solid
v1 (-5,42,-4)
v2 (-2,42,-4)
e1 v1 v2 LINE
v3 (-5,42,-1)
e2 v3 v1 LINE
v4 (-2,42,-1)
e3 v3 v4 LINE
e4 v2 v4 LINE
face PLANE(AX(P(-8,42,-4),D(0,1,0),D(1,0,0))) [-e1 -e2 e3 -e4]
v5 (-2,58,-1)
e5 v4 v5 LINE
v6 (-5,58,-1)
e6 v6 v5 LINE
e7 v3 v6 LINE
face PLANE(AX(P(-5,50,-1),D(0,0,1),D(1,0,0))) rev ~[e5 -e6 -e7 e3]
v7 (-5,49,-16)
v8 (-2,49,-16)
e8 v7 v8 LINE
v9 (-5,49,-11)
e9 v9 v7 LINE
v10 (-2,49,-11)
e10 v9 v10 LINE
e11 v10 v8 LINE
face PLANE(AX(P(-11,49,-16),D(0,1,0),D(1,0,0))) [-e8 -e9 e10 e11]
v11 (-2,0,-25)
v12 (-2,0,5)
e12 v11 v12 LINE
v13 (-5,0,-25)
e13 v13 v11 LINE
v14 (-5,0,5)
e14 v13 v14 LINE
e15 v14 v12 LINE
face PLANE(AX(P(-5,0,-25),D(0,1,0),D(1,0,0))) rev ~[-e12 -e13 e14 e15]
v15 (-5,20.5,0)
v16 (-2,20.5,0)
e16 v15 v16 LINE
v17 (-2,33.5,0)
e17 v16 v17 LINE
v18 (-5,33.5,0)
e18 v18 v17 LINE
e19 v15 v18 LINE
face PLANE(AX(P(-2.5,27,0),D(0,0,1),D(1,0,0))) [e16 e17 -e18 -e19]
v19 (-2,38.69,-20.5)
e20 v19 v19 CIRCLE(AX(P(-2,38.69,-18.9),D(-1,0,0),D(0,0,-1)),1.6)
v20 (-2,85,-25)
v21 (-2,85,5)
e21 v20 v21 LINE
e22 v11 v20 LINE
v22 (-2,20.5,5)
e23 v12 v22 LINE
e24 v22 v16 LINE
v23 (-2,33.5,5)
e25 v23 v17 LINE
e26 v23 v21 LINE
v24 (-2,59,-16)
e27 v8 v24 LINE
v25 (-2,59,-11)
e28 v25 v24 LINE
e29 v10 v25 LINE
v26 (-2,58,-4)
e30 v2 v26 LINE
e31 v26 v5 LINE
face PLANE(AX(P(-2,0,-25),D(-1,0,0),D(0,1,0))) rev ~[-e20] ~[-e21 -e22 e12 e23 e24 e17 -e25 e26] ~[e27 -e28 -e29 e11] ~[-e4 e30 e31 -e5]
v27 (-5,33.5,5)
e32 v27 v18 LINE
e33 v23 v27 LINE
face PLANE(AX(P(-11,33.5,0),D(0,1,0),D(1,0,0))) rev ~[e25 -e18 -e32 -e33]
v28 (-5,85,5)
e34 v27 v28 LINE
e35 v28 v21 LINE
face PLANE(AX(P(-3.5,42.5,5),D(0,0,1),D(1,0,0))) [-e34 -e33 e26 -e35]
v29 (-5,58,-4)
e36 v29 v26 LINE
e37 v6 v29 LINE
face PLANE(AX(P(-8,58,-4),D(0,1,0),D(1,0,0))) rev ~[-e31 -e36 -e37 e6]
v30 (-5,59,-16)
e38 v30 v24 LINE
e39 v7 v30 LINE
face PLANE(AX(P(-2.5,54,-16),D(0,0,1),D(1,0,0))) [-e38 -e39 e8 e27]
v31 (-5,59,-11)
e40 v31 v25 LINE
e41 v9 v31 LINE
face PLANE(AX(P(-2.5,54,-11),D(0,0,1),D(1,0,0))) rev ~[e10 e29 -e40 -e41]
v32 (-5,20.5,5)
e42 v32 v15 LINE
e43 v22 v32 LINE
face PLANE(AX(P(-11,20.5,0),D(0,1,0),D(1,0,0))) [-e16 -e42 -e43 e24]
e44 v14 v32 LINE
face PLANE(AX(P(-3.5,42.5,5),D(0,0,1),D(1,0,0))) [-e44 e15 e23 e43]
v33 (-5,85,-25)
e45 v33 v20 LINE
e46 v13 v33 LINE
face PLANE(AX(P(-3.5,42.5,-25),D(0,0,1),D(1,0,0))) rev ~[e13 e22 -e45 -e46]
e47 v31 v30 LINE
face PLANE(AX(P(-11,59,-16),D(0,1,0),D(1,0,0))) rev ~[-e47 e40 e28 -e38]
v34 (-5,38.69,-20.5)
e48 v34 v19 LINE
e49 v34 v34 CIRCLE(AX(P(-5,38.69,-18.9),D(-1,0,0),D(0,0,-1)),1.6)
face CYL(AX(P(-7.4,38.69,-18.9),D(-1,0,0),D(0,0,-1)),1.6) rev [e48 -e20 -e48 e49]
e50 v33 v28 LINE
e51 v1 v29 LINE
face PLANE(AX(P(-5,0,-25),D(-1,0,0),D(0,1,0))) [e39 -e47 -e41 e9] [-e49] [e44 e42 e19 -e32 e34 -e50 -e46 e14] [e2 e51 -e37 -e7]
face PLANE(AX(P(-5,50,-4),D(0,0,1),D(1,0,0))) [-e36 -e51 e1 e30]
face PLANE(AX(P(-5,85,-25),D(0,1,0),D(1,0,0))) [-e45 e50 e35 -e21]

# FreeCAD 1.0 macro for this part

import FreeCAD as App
import Part
import Sketcher

V = App.Vector


def add_polygon(sketch, points):
    """Adds a closed chain of lines whose ends are joined by coincident constraints."""
    first, n = sketch.GeometryCount, len(points)
    for a, b in zip(points, points[1:] + points[:1]):
        sketch.addGeometry(Part.LineSegment(App.Vector(*a, 0), App.Vector(*b, 0)), False)
    for i in range(n):
        sketch.addConstraint(Sketcher.Constraint("Coincident", first + i, 2, first + (i + 1) % n, 1))

doc = App.newDocument("Part")
body = doc.addObject("PartDesign::Body", "Body")

# Sketch on XY plane
sketch1 = doc.addObject("Sketcher::SketchObject", "Sketch")
body.addObject(sketch1)
sketch1.AttachmentSupport = (doc.XY_Plane, [""])
sketch1.MapMode = "FlatFace"
sketch1.addGeometry(Part.Circle(V(0, 0, 0), V(0, 0, 1), 1.6), False)
sketch1.addConstraint(Sketcher.Constraint("Coincident", 0, 3, -1, 1))
sketch1.addConstraint(Sketcher.Constraint("Diameter", 0, 3.2))
pad1 = doc.addObject("PartDesign::Pad", "Pad")
body.addObject(pad1)
pad1.Profile = sketch1
pad1.Length = 10
body2 = doc.addObject("PartDesign::Body", "Body001")
doc.recompute()

body.Placement = App.Placement(V(0, 0, 0), App.Rotation(V(0, 1, 0), 90))
boolean = doc.addObject("PartDesign::Boolean", "Boolean")
body2.addObject(boolean)
boolean.Type = "Fuse"
boolean.addObjects([body])
body3 = doc.addObject("PartDesign::Body", "Body002")
doc.recompute()

body2.Placement = App.Placement(V(-7.4, 38.69, -18.9), App.Rotation(V(0, 0, 1), 0))
boolean2 = doc.addObject("PartDesign::Boolean", "Boolean001")
body3.addObject(boolean2)
boolean2.Type = "Fuse"
boolean2.addObjects([body2])
body4 = doc.addObject("PartDesign::Body", "Body003")

# Sketch on XY plane
sketch2 = doc.addObject("Sketcher::SketchObject", "Sketch001")
body4.addObject(sketch2)
sketch2.AttachmentSupport = (doc.getObject("XY_Plane003"), [""])
sketch2.MapMode = "FlatFace"
sketch2.AttachmentOffset = App.Placement(V(0, 0, -16), App.Rotation())
add_polygon(sketch2, [(-11, 59), (-11, 49), (6, 49), (6, 59)])  # lines 0-3
sketch2.addConstraint(Sketcher.Constraint("Vertical", 0))
sketch2.addConstraint(Sketcher.Constraint("Horizontal", 1))
sketch2.addConstraint(Sketcher.Constraint("Vertical", 2))
sketch2.addConstraint(Sketcher.Constraint("Horizontal", 3))
sketch2.addConstraint(Sketcher.Constraint("DistanceX", 1, 1, 1, 2, 17.0))
sketch2.addConstraint(Sketcher.Constraint("DistanceY", 0, 2, 0, 1, 10.0))
sketch2.addConstraint(Sketcher.Constraint("DistanceX", 0, 2, -1, 1, 11.0))
sketch2.addConstraint(Sketcher.Constraint("DistanceY", -1, 1, 0, 2, 49.0))
pad2 = doc.addObject("PartDesign::Pad", "Pad001")
body4.addObject(pad2)
pad2.Profile = sketch2
pad2.Length = 5
body5 = doc.addObject("PartDesign::Body", "Body004")

# Sketch on XY plane
sketch3 = doc.addObject("Sketcher::SketchObject", "Sketch002")
body5.addObject(sketch3)
sketch3.AttachmentSupport = (doc.getObject("XY_Plane004"), [""])
sketch3.MapMode = "FlatFace"
sketch3.AttachmentOffset = App.Placement(V(0, 0, -4), App.Rotation())
add_polygon(sketch3, [(-8, 58), (-8, 42), (-2, 42), (-2, 58)])  # lines 0-3
sketch3.addConstraint(Sketcher.Constraint("Vertical", 0))
sketch3.addConstraint(Sketcher.Constraint("Horizontal", 1))
sketch3.addConstraint(Sketcher.Constraint("Vertical", 2))
sketch3.addConstraint(Sketcher.Constraint("Horizontal", 3))
sketch3.addConstraint(Sketcher.Constraint("DistanceX", 1, 1, 1, 2, 6.0))
sketch3.addConstraint(Sketcher.Constraint("DistanceY", 0, 2, 0, 1, 16.0))
sketch3.addConstraint(Sketcher.Constraint("DistanceX", 0, 2, -1, 1, 8.0))
sketch3.addConstraint(Sketcher.Constraint("DistanceY", -1, 1, 0, 2, 42.0))
pad3 = doc.addObject("PartDesign::Pad", "Pad002")
body5.addObject(pad3)
pad3.Profile = sketch3
pad3.Length = 3
body6 = doc.addObject("PartDesign::Body", "Body005")
body6.AllowCompound = True

# Sketch on XY plane
sketch4 = doc.addObject("Sketcher::SketchObject", "Sketch003")
body6.addObject(sketch4)
sketch4.AttachmentSupport = (doc.getObject("XY_Plane005"), [""])
sketch4.MapMode = "FlatFace"
add_polygon(sketch4, [(-11, 33.5), (-11, 20.5), (6, 20.5), (6, 33.5)])  # lines 0-3
sketch4.addConstraint(Sketcher.Constraint("Vertical", 0))
sketch4.addConstraint(Sketcher.Constraint("Horizontal", 1))
sketch4.addConstraint(Sketcher.Constraint("Vertical", 2))
sketch4.addConstraint(Sketcher.Constraint("Horizontal", 3))
sketch4.addConstraint(Sketcher.Constraint("DistanceX", 1, 1, 1, 2, 17.0))
sketch4.addConstraint(Sketcher.Constraint("DistanceY", 0, 2, 0, 1, 13.0))
sketch4.addConstraint(Sketcher.Constraint("DistanceX", 0, 2, -1, 1, 11.0))
sketch4.addConstraint(Sketcher.Constraint("DistanceY", -1, 1, 0, 2, 20.5))
pad4 = doc.addObject("PartDesign::Pad", "Pad003")
body6.addObject(pad4)
pad4.Profile = sketch4
pad4.Length = 10
doc.recompute()

boolean3 = doc.addObject("PartDesign::Boolean", "Boolean002")
body6.addObject(boolean3)
boolean3.Type = "Fuse"
boolean3.addObjects([body4])
doc.recompute()

boolean4 = doc.addObject("PartDesign::Boolean", "Boolean003")
body6.addObject(boolean4)
boolean4.Type = "Fuse"
boolean4.addObjects([body5])
body7 = doc.addObject("PartDesign::Body", "Body006")

# Sketch on XY plane
sketch5 = doc.addObject("Sketcher::SketchObject", "Sketch004")
body7.addObject(sketch5)
sketch5.AttachmentSupport = (doc.getObject("XY_Plane006"), [""])
sketch5.MapMode = "FlatFace"
sketch5.AttachmentOffset = App.Placement(V(0, 0, -25), App.Rotation())
add_polygon(sketch5, [(-5, 85), (-5, 0), (-2, 0), (-2, 85)])  # lines 0-3
sketch5.addConstraint(Sketcher.Constraint("Vertical", 0))
sketch5.addConstraint(Sketcher.Constraint("Horizontal", 1))
sketch5.addConstraint(Sketcher.Constraint("Vertical", 2))
sketch5.addConstraint(Sketcher.Constraint("Horizontal", 3))
sketch5.addConstraint(Sketcher.Constraint("PointOnObject", 0, 2, -1))
sketch5.addConstraint(Sketcher.Constraint("DistanceX", 1, 1, 1, 2, 3.0))
sketch5.addConstraint(Sketcher.Constraint("DistanceY", 0, 2, 0, 1, 85.0))
sketch5.addConstraint(Sketcher.Constraint("DistanceX", 0, 2, -1, 1, 5.0))
pad5 = doc.addObject("PartDesign::Pad", "Pad004")
body7.addObject(pad5)
pad5.Profile = sketch5
pad5.Length = 30
doc.recompute()

boolean5 = doc.addObject("PartDesign::Boolean", "Boolean004")
body7.addObject(boolean5)
boolean5.Type = "Cut"
boolean5.addObjects([body6])
doc.recompute()

boolean6 = doc.addObject("PartDesign::Boolean", "Boolean005")
body7.addObject(boolean6)
boolean6.Type = "Cut"
boolean6.addObjects([body3])

doc.recompute()
